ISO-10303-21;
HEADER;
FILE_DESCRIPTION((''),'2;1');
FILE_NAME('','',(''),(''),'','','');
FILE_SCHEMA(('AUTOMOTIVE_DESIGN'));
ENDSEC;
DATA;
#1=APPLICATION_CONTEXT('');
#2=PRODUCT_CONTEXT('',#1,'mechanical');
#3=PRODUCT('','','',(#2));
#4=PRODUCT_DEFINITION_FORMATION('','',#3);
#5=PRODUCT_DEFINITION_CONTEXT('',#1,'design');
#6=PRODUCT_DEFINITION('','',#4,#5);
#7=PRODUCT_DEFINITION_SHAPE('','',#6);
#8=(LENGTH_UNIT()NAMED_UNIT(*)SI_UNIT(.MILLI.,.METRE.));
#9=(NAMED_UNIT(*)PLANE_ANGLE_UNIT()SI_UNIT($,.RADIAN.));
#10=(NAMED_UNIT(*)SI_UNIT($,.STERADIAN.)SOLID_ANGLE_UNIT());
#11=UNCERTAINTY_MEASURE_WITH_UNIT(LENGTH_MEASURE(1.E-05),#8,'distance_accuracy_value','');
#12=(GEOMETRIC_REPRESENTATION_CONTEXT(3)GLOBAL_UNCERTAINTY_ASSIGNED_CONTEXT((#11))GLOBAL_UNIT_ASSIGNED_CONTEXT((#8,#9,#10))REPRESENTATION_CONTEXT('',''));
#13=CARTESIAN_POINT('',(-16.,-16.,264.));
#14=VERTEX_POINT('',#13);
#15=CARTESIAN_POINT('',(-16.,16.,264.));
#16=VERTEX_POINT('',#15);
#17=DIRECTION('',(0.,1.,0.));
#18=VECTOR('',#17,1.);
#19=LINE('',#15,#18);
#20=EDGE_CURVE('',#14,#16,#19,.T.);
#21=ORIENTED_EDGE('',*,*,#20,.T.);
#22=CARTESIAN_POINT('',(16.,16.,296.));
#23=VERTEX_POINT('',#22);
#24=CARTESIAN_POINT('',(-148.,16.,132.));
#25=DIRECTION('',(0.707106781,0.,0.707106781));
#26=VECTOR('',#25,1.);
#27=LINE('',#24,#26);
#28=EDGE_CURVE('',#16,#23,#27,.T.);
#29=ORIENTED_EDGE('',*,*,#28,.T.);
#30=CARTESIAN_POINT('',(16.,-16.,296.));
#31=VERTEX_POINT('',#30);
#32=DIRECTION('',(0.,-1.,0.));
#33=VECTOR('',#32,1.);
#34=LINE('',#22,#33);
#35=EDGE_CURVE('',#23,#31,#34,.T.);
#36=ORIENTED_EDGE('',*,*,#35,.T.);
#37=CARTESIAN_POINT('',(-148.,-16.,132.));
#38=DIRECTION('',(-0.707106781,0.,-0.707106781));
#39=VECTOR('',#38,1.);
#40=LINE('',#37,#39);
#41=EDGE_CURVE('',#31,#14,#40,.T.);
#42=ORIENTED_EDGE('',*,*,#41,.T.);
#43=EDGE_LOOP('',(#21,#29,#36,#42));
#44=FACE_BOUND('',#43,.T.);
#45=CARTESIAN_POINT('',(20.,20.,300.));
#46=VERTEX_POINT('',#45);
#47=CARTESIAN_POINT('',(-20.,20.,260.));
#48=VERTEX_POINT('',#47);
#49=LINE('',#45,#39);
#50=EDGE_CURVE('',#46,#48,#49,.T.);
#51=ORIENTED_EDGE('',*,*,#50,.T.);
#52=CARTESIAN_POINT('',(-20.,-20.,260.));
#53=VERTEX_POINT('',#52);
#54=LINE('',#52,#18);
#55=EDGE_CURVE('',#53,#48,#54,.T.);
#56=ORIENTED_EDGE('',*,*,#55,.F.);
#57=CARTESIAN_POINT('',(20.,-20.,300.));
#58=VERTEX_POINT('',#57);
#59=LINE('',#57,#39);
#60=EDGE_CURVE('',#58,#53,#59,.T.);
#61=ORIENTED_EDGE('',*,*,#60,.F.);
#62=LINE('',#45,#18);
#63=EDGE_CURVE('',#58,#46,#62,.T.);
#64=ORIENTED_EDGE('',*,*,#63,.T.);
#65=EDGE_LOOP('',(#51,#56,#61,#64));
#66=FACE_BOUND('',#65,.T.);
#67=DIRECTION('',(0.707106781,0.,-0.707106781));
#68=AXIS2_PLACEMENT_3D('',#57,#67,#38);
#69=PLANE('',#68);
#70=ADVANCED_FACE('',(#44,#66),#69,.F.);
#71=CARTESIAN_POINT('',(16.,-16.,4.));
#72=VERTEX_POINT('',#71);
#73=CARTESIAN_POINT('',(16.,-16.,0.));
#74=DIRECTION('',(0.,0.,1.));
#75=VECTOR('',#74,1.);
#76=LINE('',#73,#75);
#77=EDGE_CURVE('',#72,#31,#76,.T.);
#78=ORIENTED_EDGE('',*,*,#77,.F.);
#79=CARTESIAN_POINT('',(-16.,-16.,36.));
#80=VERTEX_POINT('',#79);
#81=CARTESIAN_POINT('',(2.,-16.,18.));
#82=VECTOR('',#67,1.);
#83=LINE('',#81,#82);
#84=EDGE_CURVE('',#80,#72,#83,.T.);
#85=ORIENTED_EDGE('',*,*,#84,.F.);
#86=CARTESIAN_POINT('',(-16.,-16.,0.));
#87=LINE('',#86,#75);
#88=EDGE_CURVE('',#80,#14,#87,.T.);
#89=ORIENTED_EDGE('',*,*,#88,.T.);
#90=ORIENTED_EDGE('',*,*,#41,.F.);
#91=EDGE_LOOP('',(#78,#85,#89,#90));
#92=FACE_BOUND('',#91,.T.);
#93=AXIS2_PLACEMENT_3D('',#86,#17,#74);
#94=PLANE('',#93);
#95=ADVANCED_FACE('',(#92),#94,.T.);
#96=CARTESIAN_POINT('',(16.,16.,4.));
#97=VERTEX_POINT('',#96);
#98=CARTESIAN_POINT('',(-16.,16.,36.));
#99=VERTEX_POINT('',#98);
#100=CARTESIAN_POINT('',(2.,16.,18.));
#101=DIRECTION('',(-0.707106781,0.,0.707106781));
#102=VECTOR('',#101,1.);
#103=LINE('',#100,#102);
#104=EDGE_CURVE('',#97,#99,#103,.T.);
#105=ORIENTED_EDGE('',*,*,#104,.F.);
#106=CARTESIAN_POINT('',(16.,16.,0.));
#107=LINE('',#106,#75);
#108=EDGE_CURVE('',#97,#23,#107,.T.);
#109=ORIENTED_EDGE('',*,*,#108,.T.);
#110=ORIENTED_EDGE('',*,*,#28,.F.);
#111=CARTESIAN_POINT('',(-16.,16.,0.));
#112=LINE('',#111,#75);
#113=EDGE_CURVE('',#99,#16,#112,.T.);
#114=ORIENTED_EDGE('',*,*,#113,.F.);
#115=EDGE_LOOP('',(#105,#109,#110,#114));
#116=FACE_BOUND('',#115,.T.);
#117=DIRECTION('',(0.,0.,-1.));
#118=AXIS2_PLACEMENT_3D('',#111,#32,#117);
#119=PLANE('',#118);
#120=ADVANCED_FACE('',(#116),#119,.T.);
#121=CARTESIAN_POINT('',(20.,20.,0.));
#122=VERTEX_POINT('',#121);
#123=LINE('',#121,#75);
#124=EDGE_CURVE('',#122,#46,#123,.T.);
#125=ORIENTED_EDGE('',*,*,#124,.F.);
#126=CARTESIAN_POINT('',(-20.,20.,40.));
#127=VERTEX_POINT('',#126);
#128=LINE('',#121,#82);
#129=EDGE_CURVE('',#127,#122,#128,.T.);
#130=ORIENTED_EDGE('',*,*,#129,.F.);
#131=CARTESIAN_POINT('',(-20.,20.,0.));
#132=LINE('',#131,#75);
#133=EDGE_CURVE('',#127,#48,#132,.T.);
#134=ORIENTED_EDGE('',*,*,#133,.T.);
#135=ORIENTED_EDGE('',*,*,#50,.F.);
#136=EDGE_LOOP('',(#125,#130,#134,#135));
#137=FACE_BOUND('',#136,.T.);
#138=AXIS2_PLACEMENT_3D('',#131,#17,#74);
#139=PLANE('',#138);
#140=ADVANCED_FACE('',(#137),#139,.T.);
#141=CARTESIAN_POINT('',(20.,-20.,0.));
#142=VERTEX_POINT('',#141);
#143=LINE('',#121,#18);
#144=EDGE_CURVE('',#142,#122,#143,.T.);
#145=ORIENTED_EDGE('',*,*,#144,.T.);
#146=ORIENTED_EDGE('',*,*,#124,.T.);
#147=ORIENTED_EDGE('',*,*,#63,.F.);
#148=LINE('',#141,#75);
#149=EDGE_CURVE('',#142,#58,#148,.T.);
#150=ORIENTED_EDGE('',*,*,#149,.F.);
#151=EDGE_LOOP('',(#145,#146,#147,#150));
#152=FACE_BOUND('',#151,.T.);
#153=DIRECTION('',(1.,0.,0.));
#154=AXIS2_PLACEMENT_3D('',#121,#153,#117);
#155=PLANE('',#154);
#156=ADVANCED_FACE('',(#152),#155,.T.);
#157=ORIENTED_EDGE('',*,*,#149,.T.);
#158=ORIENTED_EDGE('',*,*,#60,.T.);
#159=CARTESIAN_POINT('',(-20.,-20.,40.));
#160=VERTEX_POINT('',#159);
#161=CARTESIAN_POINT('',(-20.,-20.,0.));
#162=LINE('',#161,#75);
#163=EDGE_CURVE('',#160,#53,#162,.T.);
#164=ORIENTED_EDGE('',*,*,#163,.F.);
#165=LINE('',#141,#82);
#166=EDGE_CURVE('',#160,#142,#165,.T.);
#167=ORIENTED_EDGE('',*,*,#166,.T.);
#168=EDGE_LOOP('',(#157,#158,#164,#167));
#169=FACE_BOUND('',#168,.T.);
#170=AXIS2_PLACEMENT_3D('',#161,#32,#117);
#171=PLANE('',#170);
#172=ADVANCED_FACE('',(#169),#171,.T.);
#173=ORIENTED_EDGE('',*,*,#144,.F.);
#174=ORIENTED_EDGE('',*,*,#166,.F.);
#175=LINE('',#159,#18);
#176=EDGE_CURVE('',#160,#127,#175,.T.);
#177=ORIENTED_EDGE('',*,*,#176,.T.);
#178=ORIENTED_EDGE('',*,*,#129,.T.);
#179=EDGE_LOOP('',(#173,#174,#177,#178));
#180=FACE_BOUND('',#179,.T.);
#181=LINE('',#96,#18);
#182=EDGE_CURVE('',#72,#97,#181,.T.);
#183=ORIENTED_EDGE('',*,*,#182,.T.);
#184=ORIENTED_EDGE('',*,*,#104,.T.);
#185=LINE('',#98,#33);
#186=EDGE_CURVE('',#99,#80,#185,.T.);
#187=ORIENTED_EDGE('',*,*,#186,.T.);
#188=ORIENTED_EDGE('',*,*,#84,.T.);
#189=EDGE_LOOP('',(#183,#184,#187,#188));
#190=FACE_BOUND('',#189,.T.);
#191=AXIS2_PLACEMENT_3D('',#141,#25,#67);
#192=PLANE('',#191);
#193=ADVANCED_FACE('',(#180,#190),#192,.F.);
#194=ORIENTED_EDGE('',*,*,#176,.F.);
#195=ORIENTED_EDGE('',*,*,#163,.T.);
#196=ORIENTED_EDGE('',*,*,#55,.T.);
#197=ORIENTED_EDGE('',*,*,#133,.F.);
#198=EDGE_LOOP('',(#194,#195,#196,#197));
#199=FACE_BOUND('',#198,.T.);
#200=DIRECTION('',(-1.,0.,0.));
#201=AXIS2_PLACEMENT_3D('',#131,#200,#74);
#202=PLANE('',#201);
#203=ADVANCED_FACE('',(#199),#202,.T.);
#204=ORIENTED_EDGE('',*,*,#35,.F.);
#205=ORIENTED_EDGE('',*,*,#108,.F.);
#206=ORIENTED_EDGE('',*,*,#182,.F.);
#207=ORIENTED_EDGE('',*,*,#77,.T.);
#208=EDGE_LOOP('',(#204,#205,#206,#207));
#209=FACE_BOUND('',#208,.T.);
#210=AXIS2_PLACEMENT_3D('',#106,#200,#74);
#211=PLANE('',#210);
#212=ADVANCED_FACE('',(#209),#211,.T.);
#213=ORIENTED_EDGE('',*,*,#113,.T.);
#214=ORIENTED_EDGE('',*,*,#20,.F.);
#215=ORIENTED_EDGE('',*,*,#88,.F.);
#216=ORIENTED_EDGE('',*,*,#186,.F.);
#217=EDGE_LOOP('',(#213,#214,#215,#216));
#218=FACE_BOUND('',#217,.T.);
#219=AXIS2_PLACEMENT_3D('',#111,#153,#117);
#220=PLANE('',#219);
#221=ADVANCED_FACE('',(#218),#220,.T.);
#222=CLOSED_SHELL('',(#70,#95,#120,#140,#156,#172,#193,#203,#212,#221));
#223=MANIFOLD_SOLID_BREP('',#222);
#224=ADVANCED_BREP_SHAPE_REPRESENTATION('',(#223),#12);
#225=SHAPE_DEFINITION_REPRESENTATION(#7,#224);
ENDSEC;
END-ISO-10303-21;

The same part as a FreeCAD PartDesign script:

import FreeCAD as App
import Part
import Sketcher
Q = App.Units.Quantity

doc = App.newDocument("Part")
params = doc.addObject("Spreadsheet::Sheet", "Params")
for row, (alias, value) in enumerate([
    ("sketch1_width", "40 mm"),
    ("sketch1_width2", "32 mm"),
    ("sketch3_width", "40 mm"),
], start=1):
    params.set(f"A{row}", alias)
    params.set(f"B{row}", "=" + value)
    params.setAlias(f"B{row}", alias)

body = doc.addObject("PartDesign::Body", "Body")

# Sketch on XY plane
sketch1 = body.newObject("Sketcher::SketchObject", "Sketch")
sketch1.AttachmentSupport = (doc.getObject("XY_Plane"), [""])
sketch1.MapMode = "FlatFace"
sketch1.addGeometry([
    Part.LineSegment(App.Vector(-20, 20, 0), App.Vector(-20, -20, 0)),  # 0
    Part.LineSegment(App.Vector(-20, -20, 0), App.Vector(20, -20, 0)),  # 1
    Part.LineSegment(App.Vector(20, -20, 0), App.Vector(20, 20, 0)),  # 2
    Part.LineSegment(App.Vector(20, 20, 0), App.Vector(-20, 20, 0)),  # 3
    Part.LineSegment(App.Vector(16, -16, 0), App.Vector(-16, -16, 0)),  # 4
    Part.LineSegment(App.Vector(-16, -16, 0), App.Vector(-16, 16, 0)),  # 5
    Part.LineSegment(App.Vector(-16, 16, 0), App.Vector(16, 16, 0)),  # 6
    Part.LineSegment(App.Vector(16, 16, 0), App.Vector(16, -16, 0)),  # 7
], False)
sketch1.addConstraint([
    Sketcher.Constraint("Coincident", 0, 2, 1, 1),
    Sketcher.Constraint("Coincident", 1, 2, 2, 1),
    Sketcher.Constraint("Coincident", 2, 2, 3, 1),
    Sketcher.Constraint("Coincident", 3, 2, 0, 1),
    Sketcher.Constraint("Coincident", 4, 2, 5, 1),
    Sketcher.Constraint("Coincident", 5, 2, 6, 1),
    Sketcher.Constraint("Coincident", 6, 2, 7, 1),
    Sketcher.Constraint("Coincident", 7, 2, 4, 1),
    Sketcher.Constraint("Vertical", 0),
    Sketcher.Constraint("Horizontal", 1),
    Sketcher.Constraint("Vertical", 2),
    Sketcher.Constraint("Horizontal", 3),
    Sketcher.Constraint("Horizontal", 4),
    Sketcher.Constraint("Vertical", 5),
    Sketcher.Constraint("Horizontal", 6),
    Sketcher.Constraint("Vertical", 7),
    Sketcher.Constraint("Symmetric", 0, 2, 2, 2, -1, 1),
    Sketcher.Constraint("Symmetric", 4, 2, 6, 2, -1, 1),
    Sketcher.Constraint("Equal", 3, 0),
    Sketcher.Constraint("Equal", 6, 5),
    Sketcher.Constraint("DistanceX", 1, 1, 1, 2, Q("40 mm")),
    Sketcher.Constraint("DistanceX", 4, 2, 4, 1, Q("32 mm")),
])
sketch1.setExpression("Constraints[20]", "Params.sketch1_width")
sketch1.setExpression("Constraints[21]", "Params.sketch1_width2")

# Sketch on XZ plane
sketch2 = body.newObject("Sketcher::SketchObject", "Sketch001")
sketch2.AttachmentSupport = (doc.getObject("XZ_Plane"), [""])
sketch2.MapMode = "FlatFace"
sketch2.addGeometry(Part.BSplineCurve([App.Vector(0, 0, 0), App.Vector(0, 300, 0)], [2, 2], [0, 1], False, 1, [1, 1], False), False)
sketch2.addConstraint(Sketcher.Constraint("Block", 0))
doc.recompute()

additivepipe = body.newObject("PartDesign::AdditivePipe", "AdditivePipe")
additivepipe.Profile = sketch1
additivepipe.Spine = (sketch2, ["Edge1"])

# Sketch on XZ plane
sketch3 = body.newObject("Sketcher::SketchObject", "Sketch002")
sketch3.AttachmentSupport = (doc.getObject("XZ_Plane"), [""])
sketch3.MapMode = "FlatFace"
sketch3.AttachmentOffset = App.Placement(App.Vector(0, 0, -20), App.Rotation())
sketch3.addGeometry([
    Part.LineSegment(App.Vector(-20, 40, 0), App.Vector(20, 0, 0)),  # 0
    Part.LineSegment(App.Vector(20, 0, 0), App.Vector(-20, 0, 0)),  # 1
    Part.LineSegment(App.Vector(-20, 0, 0), App.Vector(-20, 40, 0)),  # 2
    Part.LineSegment(App.Vector(20, 300, 0), App.Vector(-20, 260, 0)),  # 3
    Part.LineSegment(App.Vector(-20, 260, 0), App.Vector(-20, 300, 0)),  # 4
    Part.LineSegment(App.Vector(-20, 300, 0), App.Vector(20, 300, 0)),  # 5
], False)
sketch3.addConstraint([
    Sketcher.Constraint("Coincident", 0, 2, 1, 1),
    Sketcher.Constraint("Coincident", 1, 2, 2, 1),
    Sketcher.Constraint("Coincident", 2, 2, 0, 1),
    Sketcher.Constraint("Coincident", 3, 2, 4, 1),
    Sketcher.Constraint("Coincident", 4, 2, 5, 1),
    Sketcher.Constraint("Coincident", 5, 2, 3, 1),
    Sketcher.Constraint("Horizontal", 1),
    Sketcher.Constraint("Vertical", 2),
    Sketcher.Constraint("Vertical", 4),
    Sketcher.Constraint("Horizontal", 5),
    Sketcher.Constraint("Symmetric", 0, 2, 1, 2, -1, 1),
    Sketcher.Constraint("Perpendicular", 0, 3),
    Sketcher.Constraint("Vertical", 2, 2, 3, 2),
    Sketcher.Constraint("Vertical", 0, 2, 5, 2),
    Sketcher.Constraint("Equal", 5, 2),
    Sketcher.Constraint("DistanceX", 1, 2, 1, 1, Q("40 mm")),
    Sketcher.Constraint("DistanceY", -1, 1, 3, 2, Q("260 mm")),
])
sketch3.setExpression("Constraints[15]", "Params.sketch3_width")
pocket1 = body.newObject("PartDesign::Pocket", "Pocket")
pocket1.Profile = sketch3
pocket1.Type = "ThroughAll"
pocket1.Reversed = True

doc.recompute()
